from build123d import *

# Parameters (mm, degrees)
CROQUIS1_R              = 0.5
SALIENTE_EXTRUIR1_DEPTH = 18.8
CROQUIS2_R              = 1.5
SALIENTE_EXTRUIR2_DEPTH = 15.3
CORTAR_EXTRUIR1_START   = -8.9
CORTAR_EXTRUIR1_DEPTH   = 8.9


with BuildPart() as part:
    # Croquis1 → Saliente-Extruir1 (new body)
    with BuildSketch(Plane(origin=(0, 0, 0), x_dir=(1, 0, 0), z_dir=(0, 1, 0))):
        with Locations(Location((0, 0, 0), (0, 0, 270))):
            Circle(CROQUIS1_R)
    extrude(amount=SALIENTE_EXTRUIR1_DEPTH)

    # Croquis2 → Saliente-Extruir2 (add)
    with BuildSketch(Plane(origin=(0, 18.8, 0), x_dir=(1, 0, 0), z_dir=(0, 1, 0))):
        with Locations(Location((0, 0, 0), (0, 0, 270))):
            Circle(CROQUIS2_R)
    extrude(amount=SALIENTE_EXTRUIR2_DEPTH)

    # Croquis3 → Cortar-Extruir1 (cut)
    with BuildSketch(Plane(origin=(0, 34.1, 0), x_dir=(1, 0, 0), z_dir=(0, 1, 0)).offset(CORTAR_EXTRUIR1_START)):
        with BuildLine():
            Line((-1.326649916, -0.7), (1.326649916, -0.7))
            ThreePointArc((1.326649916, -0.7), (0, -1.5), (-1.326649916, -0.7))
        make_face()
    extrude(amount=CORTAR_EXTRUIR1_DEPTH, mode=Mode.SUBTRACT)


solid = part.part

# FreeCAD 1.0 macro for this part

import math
import FreeCAD as App
import Part
import Sketcher
from FreeCAD import Vector
Q = App.Units.Quantity

doc = App.newDocument("Part")
body = doc.addObject("PartDesign::Body", "Body")

sketch1 = body.newObject("Sketcher::SketchObject", "Sketch")
sketch1.AttachmentSupport = (doc.getObject("XZ_Plane"), [""])
sketch1.MapMode = "FlatFace"
sketch1.addGeometry(Part.Circle(Vector(0, 0, 0), Vector(0, 0, 1), 0.5), False)
sketch1.addConstraint([
    Sketcher.Constraint("Coincident", 0, 3, -1, 1),
    Sketcher.Constraint("Diameter", 0, Q("1 mm")),
])
pad1 = body.newObject("PartDesign::Pad", "Pad")
pad1.Profile = sketch1
pad1.Length = 18.8
pad1.Reversed = True

sketch2 = body.newObject("Sketcher::SketchObject", "Sketch001")
sketch2.AttachmentSupport = (doc.getObject("XZ_Plane"), [""])
sketch2.MapMode = "FlatFace"
sketch2.AttachmentOffset = App.Placement(Vector(0, 0, -18.8), App.Rotation())
sketch2.addGeometry(Part.Circle(Vector(0, 0, 0), Vector(0, 0, 1), 1.5), False)
sketch2.addConstraint([
    Sketcher.Constraint("Coincident", 0, 3, -1, 1),
    Sketcher.Constraint("Diameter", 0, Q("3 mm")),
])
pad2 = body.newObject("PartDesign::Pad", "Pad001")
pad2.Profile = sketch2
pad2.Length = 15.3
pad2.Reversed = True

sketch3 = body.newObject("Sketcher::SketchObject", "Sketch002")
sketch3.AttachmentSupport = (doc.getObject("XZ_Plane"), [""])
sketch3.MapMode = "FlatFace"
sketch3.AttachmentOffset = App.Placement(Vector(0, 0, -25.2), App.Rotation())
sketch3.addGeometry([
    Part.LineSegment(Vector(1.3, 0.7, 0), Vector(-1.3, 0.7, 0)),
    Part.ArcOfCircle(Part.Circle(Vector(0, 0, 0), Vector(0, 0, 1), 1.5), math.radians(28), math.radians(152)),
], False)
sketch3.addConstraint([
    Sketcher.Constraint("Coincident", 0, 1, 1, 1),
    Sketcher.Constraint("Coincident", 1, 2, 0, 2),
    Sketcher.Constraint("Horizontal", 0),
    Sketcher.Constraint("Coincident", 1, 3, -1, 1),
    Sketcher.Constraint("Radius", 1, Q("1.5 mm")),
    Sketcher.Constraint("DistanceY", -1, 1, 0, 1, Q("0.7 mm")),
])
pocket1 = body.newObject("PartDesign::Pocket", "Pocket")
pocket1.Profile = sketch3
pocket1.Length = 8.9

doc.recompute()
